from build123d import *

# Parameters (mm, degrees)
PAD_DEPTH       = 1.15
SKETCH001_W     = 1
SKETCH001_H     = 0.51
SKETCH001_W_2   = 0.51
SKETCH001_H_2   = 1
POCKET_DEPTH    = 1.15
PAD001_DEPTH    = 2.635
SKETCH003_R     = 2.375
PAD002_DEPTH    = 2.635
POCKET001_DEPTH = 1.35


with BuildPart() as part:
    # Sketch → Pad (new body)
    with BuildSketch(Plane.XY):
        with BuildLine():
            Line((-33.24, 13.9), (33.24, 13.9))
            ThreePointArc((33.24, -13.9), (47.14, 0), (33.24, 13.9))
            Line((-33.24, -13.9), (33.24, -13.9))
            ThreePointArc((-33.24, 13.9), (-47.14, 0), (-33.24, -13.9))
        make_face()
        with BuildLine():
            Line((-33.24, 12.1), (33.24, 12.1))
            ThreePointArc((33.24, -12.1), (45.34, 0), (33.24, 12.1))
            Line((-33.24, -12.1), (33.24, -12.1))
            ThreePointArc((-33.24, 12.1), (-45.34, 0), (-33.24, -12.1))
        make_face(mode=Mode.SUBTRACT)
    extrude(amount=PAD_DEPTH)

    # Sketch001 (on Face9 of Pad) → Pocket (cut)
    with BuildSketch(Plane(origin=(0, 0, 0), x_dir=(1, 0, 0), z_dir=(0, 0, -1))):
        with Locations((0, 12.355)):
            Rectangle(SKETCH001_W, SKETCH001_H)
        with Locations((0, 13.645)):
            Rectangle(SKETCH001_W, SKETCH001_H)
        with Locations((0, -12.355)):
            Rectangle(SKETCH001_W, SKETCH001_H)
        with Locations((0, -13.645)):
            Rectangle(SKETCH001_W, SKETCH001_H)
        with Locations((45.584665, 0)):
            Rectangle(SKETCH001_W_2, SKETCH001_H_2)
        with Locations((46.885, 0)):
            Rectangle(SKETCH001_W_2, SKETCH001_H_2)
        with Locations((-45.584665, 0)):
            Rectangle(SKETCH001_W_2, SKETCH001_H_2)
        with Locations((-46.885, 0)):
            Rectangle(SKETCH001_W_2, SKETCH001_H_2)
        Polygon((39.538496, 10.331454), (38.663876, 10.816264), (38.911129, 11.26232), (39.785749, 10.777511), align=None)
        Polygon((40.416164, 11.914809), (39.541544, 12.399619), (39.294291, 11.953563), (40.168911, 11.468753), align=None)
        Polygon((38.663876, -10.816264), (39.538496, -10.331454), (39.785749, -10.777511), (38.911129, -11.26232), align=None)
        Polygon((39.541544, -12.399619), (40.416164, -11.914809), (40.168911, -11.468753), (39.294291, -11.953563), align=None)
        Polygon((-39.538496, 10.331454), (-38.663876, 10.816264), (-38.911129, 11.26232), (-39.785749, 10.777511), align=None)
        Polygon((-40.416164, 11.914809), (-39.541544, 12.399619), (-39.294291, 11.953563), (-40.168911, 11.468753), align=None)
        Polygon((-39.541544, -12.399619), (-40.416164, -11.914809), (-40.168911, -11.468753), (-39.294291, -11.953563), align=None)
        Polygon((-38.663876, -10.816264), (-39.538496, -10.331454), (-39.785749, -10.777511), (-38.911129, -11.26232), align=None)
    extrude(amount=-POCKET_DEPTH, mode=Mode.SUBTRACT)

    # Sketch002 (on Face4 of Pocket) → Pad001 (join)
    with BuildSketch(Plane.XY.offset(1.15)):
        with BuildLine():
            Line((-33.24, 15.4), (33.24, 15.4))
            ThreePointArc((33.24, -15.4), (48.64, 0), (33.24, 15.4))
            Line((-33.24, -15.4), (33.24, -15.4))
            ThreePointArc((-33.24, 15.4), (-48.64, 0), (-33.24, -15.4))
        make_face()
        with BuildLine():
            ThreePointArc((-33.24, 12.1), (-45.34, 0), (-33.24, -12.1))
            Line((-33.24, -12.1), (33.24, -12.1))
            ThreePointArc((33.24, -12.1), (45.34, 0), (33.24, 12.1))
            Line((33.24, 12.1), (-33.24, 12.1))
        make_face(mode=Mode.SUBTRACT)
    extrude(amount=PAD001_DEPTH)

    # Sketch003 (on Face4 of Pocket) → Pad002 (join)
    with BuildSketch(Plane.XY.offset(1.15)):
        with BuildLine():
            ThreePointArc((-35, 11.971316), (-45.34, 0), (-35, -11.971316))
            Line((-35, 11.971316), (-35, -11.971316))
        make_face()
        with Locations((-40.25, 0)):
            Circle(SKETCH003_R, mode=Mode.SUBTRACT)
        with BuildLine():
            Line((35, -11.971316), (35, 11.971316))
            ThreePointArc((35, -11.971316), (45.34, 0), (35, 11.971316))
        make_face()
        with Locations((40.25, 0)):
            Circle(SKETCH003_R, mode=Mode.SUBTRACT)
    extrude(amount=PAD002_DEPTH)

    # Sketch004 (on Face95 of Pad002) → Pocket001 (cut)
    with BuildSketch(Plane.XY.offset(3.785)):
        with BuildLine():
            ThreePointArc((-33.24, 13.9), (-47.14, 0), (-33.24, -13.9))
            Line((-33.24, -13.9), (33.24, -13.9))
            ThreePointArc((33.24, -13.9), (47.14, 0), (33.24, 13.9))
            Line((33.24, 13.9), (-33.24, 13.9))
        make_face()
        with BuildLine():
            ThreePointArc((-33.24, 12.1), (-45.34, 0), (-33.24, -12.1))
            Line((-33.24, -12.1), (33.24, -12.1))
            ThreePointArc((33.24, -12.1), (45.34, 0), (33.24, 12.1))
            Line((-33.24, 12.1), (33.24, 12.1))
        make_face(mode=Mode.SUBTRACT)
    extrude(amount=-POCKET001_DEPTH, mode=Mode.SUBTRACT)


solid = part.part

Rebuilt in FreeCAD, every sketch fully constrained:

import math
import FreeCAD as App
import Part
import Sketcher
from FreeCAD import Vector
Q = App.Units.Quantity


def add_polygon(sketch, points):
    """Adds a closed chain of lines whose ends are joined by coincident constraints."""
    first, n = sketch.GeometryCount, len(points)
    for a, b in zip(points, points[1:] + points[:1]):
        sketch.addGeometry(Part.LineSegment(App.Vector(*a, 0), App.Vector(*b, 0)), False)
    for i in range(n):
        sketch.addConstraint(Sketcher.Constraint("Coincident", first + i, 2, first + (i + 1) % n, 1))

doc = App.newDocument("Part")
params = doc.addObject("Spreadsheet::Sheet", "Params")
for row, (alias, value) in enumerate([
    ("sketch1_radius", "13.9 mm"),
    ("sketch1_radius2", "12.1 mm"),
    ("sketch1_width", "66.48 mm"),
    ("pad1_length", "1.15 mm"),
    ("sketch2_width", "1 mm"),
    ("sketch2_length", "1 mm"),
    ("sketch2_width2", "0.51 mm"),
    ("sketch2_length2", "0.510001 mm"),
    ("pocket1_length", "1.15 mm"),
    ("sketch3_radius", "15.4 mm"),
    ("sketch3_radius2", "12.1 mm"),
    ("sketch3_width", "66.48 mm"),
    ("pad2_length", "2.635 mm"),
    ("sketch4_radius", "12.1 mm"),
    ("sketch4_diameter", "4.75 mm"),
    ("pad3_length", "2.635 mm"),
    ("sketch5_radius", "13.9 mm"),
    ("sketch5_radius2", "12.1 mm"),
    ("sketch5_width", "66.48 mm"),
    ("pocket2_length", "1.35 mm"),
], start=1):
    params.set(f"A{row}", alias)
    params.set(f"B{row}", "=" + value)
    params.setAlias(f"B{row}", alias)

body = doc.addObject("PartDesign::Body", "Body")

sketch1 = body.newObject("Sketcher::SketchObject", "Sketch")
sketch1.AttachmentSupport = (doc.getObject("XY_Plane"), [""])
sketch1.MapMode = "FlatFace"
sketch1.addGeometry([
    Part.LineSegment(Vector(33, 14, 0), Vector(-33, 14, 0)),
    Part.ArcOfCircle(Part.Circle(Vector(-33, 0, 0), Vector(0, 0, 1), 14), math.radians(90), math.radians(270)),
    Part.LineSegment(Vector(-33, -14, 0), Vector(33, -14, 0)),
    Part.ArcOfCircle(Part.Circle(Vector(33, 0, 0), Vector(0, 0, 1), 14), math.radians(-90), math.radians(90)),
    Part.LineSegment(Vector(-33, 12, 0), Vector(33, 12, 0)),
    Part.ArcOfCircle(Part.Circle(Vector(33, 0, 0), Vector(0, 0, 1), 12), math.radians(-90), math.radians(90)),
    Part.LineSegment(Vector(33, -12, 0), Vector(-33, -12, 0)),
    Part.ArcOfCircle(Part.Circle(Vector(-33, 0, 0), Vector(0, 0, 1), 12), math.radians(90), math.radians(270)),
], False)
sketch1.addConstraint([
    Sketcher.Constraint("Tangent", 0, 2, 1, 1),
    Sketcher.Constraint("Tangent", 1, 2, 2, 1),
    Sketcher.Constraint("Tangent", 2, 2, 3, 1),
    Sketcher.Constraint("Tangent", 3, 2, 0, 1),
    Sketcher.Constraint("Tangent", 4, 2, 5, 2),
    Sketcher.Constraint("Tangent", 5, 1, 6, 1),
    Sketcher.Constraint("Tangent", 6, 2, 7, 2),
    Sketcher.Constraint("Tangent", 7, 1, 4, 1),
    Sketcher.Constraint("Horizontal", 0),
    Sketcher.Constraint("Horizontal", 2),
    Sketcher.Constraint("Horizontal", 4),
    Sketcher.Constraint("Horizontal", 6),
    Sketcher.Constraint("Coincident", 5, 3, 3, 3),
    Sketcher.Constraint("Symmetric", 1, 3, 3, 3, -1, 1),
    Sketcher.Constraint("Vertical", 7, 3, 0, 2),
    Sketcher.Constraint("Radius", 1, 13.9),
    Sketcher.Constraint("Radius", 5, 12.1),
    Sketcher.Constraint("DistanceX", 0, 2, 0, 1, 66.48),
])
sketch1.setExpression("Constraints[15]", "Params.sketch1_radius")
sketch1.setExpression("Constraints[16]", "Params.sketch1_radius2")
sketch1.setExpression("Constraints[17]", "Params.sketch1_width")
pad1 = body.newObject("PartDesign::Pad", "Pad")
pad1.Profile = sketch1
pad1.setExpression("Length", "Params.pad1_length")

sketch2 = body.newObject("Sketcher::SketchObject", "Sketch001")
sketch2.AttachmentSupport = (doc.getObject("XY_Plane"), [""])
sketch2.MapMode = "FlatFace"
add_polygon(sketch2, [(-0.5, -12.6), (-0.5, -12.1), (0.5, -12.1), (0.5, -12.6)])
add_polygon(sketch2, [(-0.5, -13.9), (-0.5, -13.4), (0.5, -13.4), (0.5, -13.9)])
add_polygon(sketch2, [(-0.5, 12.1), (-0.5, 12.6), (0.5, 12.6), (0.5, 12.1)])
add_polygon(sketch2, [(-0.5, 13.4), (-0.5, 13.9), (0.5, 13.9), (0.5, 13.4)])
add_polygon(sketch2, [(45.3, -0.5), (45.3, 0.5), (45.8, 0.5), (45.8, -0.5)])
add_polygon(sketch2, [(46.6, -0.5), (46.6, 0.5), (47.1, 0.5), (47.1, -0.5)])
add_polygon(sketch2, [(-45.8, -0.5), (-45.8, 0.5), (-45.3, 0.5), (-45.3, -0.5)])
add_polygon(sketch2, [(-47.1, -0.5), (-47.1, 0.5), (-46.6, 0.5), (-46.6, -0.5)])
add_polygon(sketch2, [(38.7, -10.8), (39.5, -10.3), (39.8, -10.8), (38.9, -11.3)])
add_polygon(sketch2, [(40.4, -11.9), (39.5, -12.4), (39.3, -12), (40.2, -11.5)])
add_polygon(sketch2, [(39.5, 10.3), (38.7, 10.8), (38.9, 11.3), (39.8, 10.8)])
add_polygon(sketch2, [(39.5, 12.4), (40.4, 11.9), (40.2, 11.5), (39.3, 12)])
add_polygon(sketch2, [(-39.5, -10.3), (-38.7, -10.8), (-38.9, -11.3), (-39.8, -10.8)])
add_polygon(sketch2, [(-39.5, -12.4), (-40.4, -11.9), (-40.2, -11.5), (-39.3, -12)])
add_polygon(sketch2, [(-40.4, 11.9), (-39.5, 12.4), (-39.3, 12), (-40.2, 11.5)])
add_polygon(sketch2, [(-38.7, 10.8), (-39.5, 10.3), (-39.8, 10.8), (-38.9, 11.3)])
sketch2.addConstraint([
    Sketcher.Constraint("Vertical", 0),
    Sketcher.Constraint("Horizontal", 1),
    Sketcher.Constraint("Vertical", 2),
    Sketcher.Constraint("Horizontal", 3),
    Sketcher.Constraint("Vertical", 4),
    Sketcher.Constraint("Horizontal", 5),
    Sketcher.Constraint("Vertical", 6),
    Sketcher.Constraint("Horizontal", 7),
    Sketcher.Constraint("Vertical", 8),
    Sketcher.Constraint("Horizontal", 9),
    Sketcher.Constraint("Vertical", 10),
    Sketcher.Constraint("Horizontal", 11),
    Sketcher.Constraint("Vertical", 12),
    Sketcher.Constraint("Horizontal", 13),
    Sketcher.Constraint("Vertical", 14),
    Sketcher.Constraint("Horizontal", 15),
    Sketcher.Constraint("Vertical", 16),
    Sketcher.Constraint("Horizontal", 17),
    Sketcher.Constraint("Vertical", 18),
    Sketcher.Constraint("Horizontal", 19),
    Sketcher.Constraint("Vertical", 20),
    Sketcher.Constraint("Horizontal", 21),
    Sketcher.Constraint("Vertical", 22),
    Sketcher.Constraint("Horizontal", 23),
    Sketcher.Constraint("Vertical", 24),
    Sketcher.Constraint("Horizontal", 25),
    Sketcher.Constraint("Vertical", 26),
    Sketcher.Constraint("Horizontal", 27),
    Sketcher.Constraint("Vertical", 28),
    Sketcher.Constraint("Horizontal", 29),
    Sketcher.Constraint("Vertical", 30),
    Sketcher.Constraint("Horizontal", 31),
    Sketcher.Constraint("Symmetric", 2, 2, 8, 2, -1, 1),
    Sketcher.Constraint("Symmetric", 0, 2, 10, 2, -1, 1),
    Sketcher.Constraint("Symmetric", 6, 2, 12, 2, -1, 1),
    Sketcher.Constraint("Symmetric", 4, 2, 14, 2, -1, 1),
    Sketcher.Constraint("Symmetric", 18, 2, 24, 2, -1, 1),
    Sketcher.Constraint("Symmetric", 16, 2, 26, 2, -1, 1),
    Sketcher.Constraint("Symmetric", 22, 2, 28, 2, -1, 1),
    Sketcher.Constraint("Symmetric", 20, 2, 30, 2, -1, 1),
    Sketcher.Constraint("Symmetric", 40, 2, 48, 2, -1, 1),
    Sketcher.Constraint("Symmetric", 41, 2, 49, 2, -1, 1),
    Sketcher.Constraint("Symmetric", 42, 2, 50, 2, -1, 1),
    Sketcher.Constraint("Symmetric", 43, 2, 51, 2, -1, 1),
    Sketcher.Constraint("Symmetric", 44, 2, 52, 2, -1, 1),
    Sketcher.Constraint("Symmetric", 45, 2, 53, 2, -1, 1),
    Sketcher.Constraint("Symmetric", 46, 2, 54, 2, -1, 1),
    Sketcher.Constraint("Symmetric", 47, 2, 55, 2, -1, 1),
    Sketcher.Constraint("Symmetric", 36, 2, 56, 2, -1, 1),
    Sketcher.Constraint("Symmetric", 37, 2, 57, 2, -1, 1),
    Sketcher.Constraint("Symmetric", 38, 2, 58, 2, -1, 1),
    Sketcher.Constraint("Symmetric", 39, 2, 59, 2, -1, 1),
    Sketcher.Constraint("Symmetric", 32, 2, 60, 2, -1, 1),
    Sketcher.Constraint("Symmetric", 33, 2, 61, 2, -1, 1),
    Sketcher.Constraint("Symmetric", 34, 2, 62, 2, -1, 1),
    Sketcher.Constraint("Symmetric", 35, 2, 63, 2, -1, 1),
    Sketcher.Constraint("Symmetric", 35, 2, 48, 2, -2),
    Sketcher.Constraint("Symmetric", 34, 2, 49, 2, -2),
    Sketcher.Constraint("Symmetric", 33, 2, 50, 2, -2),
    Sketcher.Constraint("Symmetric", 32, 2, 51, 2, -2),
    Sketcher.Constraint("Symmetric", 39, 2, 52, 2, -2),
    Sketcher.Constraint("Symmetric", 38, 2, 53, 2, -2),
    Sketcher.Constraint("Symmetric", 37, 2, 54, 2, -2),
    Sketcher.Constraint("Symmetric", 36, 2, 55, 2, -2),
    Sketcher.Constraint("Perpendicular", 32, 33),
    Sketcher.Constraint("Perpendicular", 33, 34),
    Sketcher.Constraint("Perpendicular", 34, 35),
    Sketcher.Constraint("Perpendicular", 35, 36),
    Sketcher.Constraint("Perpendicular", 36, 37),
    Sketcher.Constraint("Perpendicular", 37, 38),
    Sketcher.Constraint("Perpendicular", 38, 39),
    Sketcher.Constraint("Horizontal", 17, 2, 20, 2),
    Sketcher.Constraint("Horizontal", 19, 2, 22, 2),
    Sketcher.Constraint("Horizontal", 21, 2, 24, 2),
    Sketcher.Constraint("Vertical", 3, 2, 4, 2),
    Sketcher.Constraint("Vertical", 2, 2, 5, 2),
    Sketcher.Constraint("Vertical", 7, 2, 8, 2),
    Sketcher.Constraint("Equal", 19, 21),
    Sketcher.Constraint("Equal", 31, 0),
    Sketcher.Constraint("Equal", 2, 4),
    Sketcher.Constraint("Equal", 15, 16),
    Sketcher.Constraint("Equal", 34, 36),
    Sketcher.Constraint("Equal", 35, 37),
    Sketcher.Constraint("DistanceX", 1, 1, 1, 2, 1.0),
    Sketcher.Constraint("Angle", 32, Q("29.000011 deg")),
    Sketcher.Constraint("Distance", 32, 1.0),
    Sketcher.Constraint("DistanceX", 17, 1, 17, 2, 0.51),
    Sketcher.Constraint("DistanceY", 0, 2, -1, 1, 12.1),
    Sketcher.Constraint("DistanceY", 6, 2, -1, 1, 13.9),
    Sketcher.Constraint("Distance", 33, 0.510001),
    Sketcher.Constraint("DistanceX", -1, 1, 20, 2, 46.63),
    Sketcher.Constraint("DistanceX", -1, 1, 33, 2, 39.785749),
    Sketcher.Constraint("DistanceY", 33, 2, -1, 1, 10.777511),
    Sketcher.Constraint("DistanceY", 36, 2, -1, 1, 12.399619),
    Sketcher.Constraint("DistanceX", -1, 1, 37, 2, 39.294291),
    Sketcher.Constraint("DistanceX", -1, 1, 16, 2, 45.329665),
])
sketch2.setExpression("Constraints[147]", "Params.sketch2_width")
sketch2.setExpression("Constraints[149]", "Params.sketch2_length")
sketch2.setExpression("Constraints[150]", "Params.sketch2_width2")
sketch2.setExpression("Constraints[153]", "Params.sketch2_length2")
pocket1 = body.newObject("PartDesign::Pocket", "Pocket")
pocket1.Profile = sketch2
pocket1.setExpression("Length", "Params.pocket1_length")
pocket1.Reversed = True

sketch3 = body.newObject("Sketcher::SketchObject", "Sketch002")
sketch3.AttachmentSupport = (doc.getObject("XY_Plane"), [""])
sketch3.MapMode = "FlatFace"
sketch3.AttachmentOffset = App.Placement(Vector(0, 0, 1.15), App.Rotation())
sketch3.addGeometry([
    Part.LineSegment(Vector(33, 15, 0), Vector(-33, 15, 0)),
    Part.ArcOfCircle(Part.Circle(Vector(-33, 0, 0), Vector(0, 0, 1), 15), math.radians(90), math.radians(270)),
    Part.LineSegment(Vector(-33, -15, 0), Vector(33, -15, 0)),
    Part.ArcOfCircle(Part.Circle(Vector(33, 0, 0), Vector(0, 0, 1), 15), math.radians(-90), math.radians(90)),
    Part.LineSegment(Vector(-33, 12, 0), Vector(33, 12, 0)),
    Part.ArcOfCircle(Part.Circle(Vector(33, 0, 0), Vector(0, 0, 1), 12), math.radians(-90), math.radians(90)),
    Part.LineSegment(Vector(33, -12, 0), Vector(-33, -12, 0)),
    Part.ArcOfCircle(Part.Circle(Vector(-33, 0, 0), Vector(0, 0, 1), 12), math.radians(90), math.radians(270)),
], False)
sketch3.addConstraint([
    Sketcher.Constraint("Tangent", 0, 2, 1, 1),
    Sketcher.Constraint("Tangent", 1, 2, 2, 1),
    Sketcher.Constraint("Tangent", 2, 2, 3, 1),
    Sketcher.Constraint("Tangent", 3, 2, 0, 1),
    Sketcher.Constraint("Tangent", 4, 2, 5, 2),
    Sketcher.Constraint("Tangent", 5, 1, 6, 1),
    Sketcher.Constraint("Tangent", 6, 2, 7, 2),
    Sketcher.Constraint("Tangent", 7, 1, 4, 1),
    Sketcher.Constraint("Horizontal", 0),
    Sketcher.Constraint("Horizontal", 2),
    Sketcher.Constraint("Horizontal", 4),
    Sketcher.Constraint("Horizontal", 6),
    Sketcher.Constraint("Coincident", 5, 3, 3, 3),
    Sketcher.Constraint("Symmetric", 1, 3, 3, 3, -1, 1),
    Sketcher.Constraint("Vertical", 7, 3, 0, 2),
    Sketcher.Constraint("Radius", 1, 15.4),
    Sketcher.Constraint("Radius", 5, 12.1),
    Sketcher.Constraint("DistanceX", 0, 2, 0, 1, 66.48),
])
sketch3.setExpression("Constraints[15]", "Params.sketch3_radius")
sketch3.setExpression("Constraints[16]", "Params.sketch3_radius2")
sketch3.setExpression("Constraints[17]", "Params.sketch3_width")
pad2 = body.newObject("PartDesign::Pad", "Pad001")
pad2.Profile = sketch3
pad2.setExpression("Length", "Params.pad2_length")

sketch4 = body.newObject("Sketcher::SketchObject", "Sketch003")
sketch4.AttachmentSupport = (doc.getObject("XY_Plane"), [""])
sketch4.MapMode = "FlatFace"
sketch4.AttachmentOffset = App.Placement(Vector(0, 0, 1.15), App.Rotation())
sketch4.addGeometry([
    Part.ArcOfCircle(Part.Circle(Vector(-33.2, 0, 0), Vector(0, 0, 1), 12.1), math.radians(98), math.radians(262)),
    Part.LineSegment(Vector(-35, -12, 0), Vector(-35, 12, 0)),
    Part.Circle(Vector(-40.2, 0, 0), Vector(0, 0, 1), 2.4),
    Part.LineSegment(Vector(35, 12, 0), Vector(35, -12, 0)),
    Part.ArcOfCircle(Part.Circle(Vector(33.2, 0, 0), Vector(0, 0, 1), 12.1), math.radians(-82), math.radians(82)),
    Part.Circle(Vector(40.2, 0, 0), Vector(0, 0, 1), 2.4),
], False)
sketch4.addConstraint([
    Sketcher.Constraint("Coincident", 0, 1, 1, 2),
    Sketcher.Constraint("Coincident", 1, 1, 0, 2),
    Sketcher.Constraint("Coincident", 3, 1, 4, 2),
    Sketcher.Constraint("Coincident", 4, 1, 3, 2),
    Sketcher.Constraint("Vertical", 1),
    Sketcher.Constraint("Vertical", 3),
    Sketcher.Constraint("Equal", 0, 4),
    Sketcher.Constraint("Equal", 2, 5),
    Sketcher.Constraint("Symmetric", 0, 3, 4, 3, -1, 1),
    Sketcher.Constraint("Symmetric", 2, 3, 5, 3, -1, 1),
    Sketcher.Constraint("Symmetric", 0, 1, 3, 1, -2),
    Sketcher.Constraint("PointOnObject", 2, 3, -1),
    Sketcher.Constraint("Radius", 0, 12.1),
    Sketcher.Constraint("Diameter", 2, 4.75),
    Sketcher.Constraint("DistanceX", 0, 1, -1, 1, 35.0),
    Sketcher.Constraint("DistanceX", 2, 3, 5, 3, 80.5),
    Sketcher.Constraint("DistanceX", 0, 3, -1, 1, 33.24),
])
sketch4.setExpression("Constraints[12]", "Params.sketch4_radius")
sketch4.setExpression("Constraints[13]", "Params.sketch4_diameter")
pad3 = body.newObject("PartDesign::Pad", "Pad002")
pad3.Profile = sketch4
pad3.setExpression("Length", "Params.pad3_length")

sketch5 = body.newObject("Sketcher::SketchObject", "Sketch004")
sketch5.AttachmentSupport = (doc.getObject("XY_Plane"), [""])
sketch5.MapMode = "FlatFace"
sketch5.AttachmentOffset = App.Placement(Vector(0, 0, 3.785), App.Rotation())
sketch5.addGeometry([
    Part.ArcOfCircle(Part.Circle(Vector(-33, 0, 0), Vector(0, 0, 1), 14), math.radians(90), math.radians(270)),
    Part.LineSegment(Vector(-33, -14, 0), Vector(33, -14, 0)),
    Part.ArcOfCircle(Part.Circle(Vector(33, 0, 0), Vector(0, 0, 1), 14), math.radians(-90), math.radians(90)),
    Part.LineSegment(Vector(33, 14, 0), Vector(-33, 14, 0)),
    Part.ArcOfCircle(Part.Circle(Vector(-33, 0, 0), Vector(0, 0, 1), 12), math.radians(90), math.radians(270)),
    Part.LineSegment(Vector(-33, 12, 0), Vector(33, 12, 0)),
    Part.ArcOfCircle(Part.Circle(Vector(33, 0, 0), Vector(0, 0, 1), 12), math.radians(-90), math.radians(90)),
    Part.LineSegment(Vector(33, -12, 0), Vector(-33, -12, 0)),
], False)
sketch5.addConstraint([
    Sketcher.Constraint("Tangent", 0, 2, 1, 1),
    Sketcher.Constraint("Tangent", 1, 2, 2, 1),
    Sketcher.Constraint("Tangent", 2, 2, 3, 1),
    Sketcher.Constraint("Tangent", 3, 2, 0, 1),
    Sketcher.Constraint("Tangent", 4, 1, 5, 1),
    Sketcher.Constraint("Tangent", 5, 2, 6, 2),
    Sketcher.Constraint("Tangent", 6, 1, 7, 1),
    Sketcher.Constraint("Tangent", 7, 2, 4, 2),
    Sketcher.Constraint("Horizontal", 1),
    Sketcher.Constraint("Horizontal", 3),
    Sketcher.Constraint("Horizontal", 5),
    Sketcher.Constraint("Horizontal", 7),
    Sketcher.Constraint("Coincident", 4, 3, 0, 3),
    Sketcher.Constraint("Symmetric", 0, 3, 2, 3, -1, 1),
    Sketcher.Constraint("Vertical", 6, 3, 1, 2),
    Sketcher.Constraint("Radius", 0, 13.9),
    Sketcher.Constraint("Radius", 4, 12.1),
    Sketcher.Constraint("DistanceX", 1, 1, 1, 2, 66.48),
])
sketch5.setExpression("Constraints[15]", "Params.sketch5_radius")
sketch5.setExpression("Constraints[16]", "Params.sketch5_radius2")
sketch5.setExpression("Constraints[17]", "Params.sketch5_width")
pocket2 = body.newObject("PartDesign::Pocket", "Pocket001")
pocket2.Profile = sketch5
pocket2.setExpression("Length", "Params.pocket2_length")

doc.recompute()
